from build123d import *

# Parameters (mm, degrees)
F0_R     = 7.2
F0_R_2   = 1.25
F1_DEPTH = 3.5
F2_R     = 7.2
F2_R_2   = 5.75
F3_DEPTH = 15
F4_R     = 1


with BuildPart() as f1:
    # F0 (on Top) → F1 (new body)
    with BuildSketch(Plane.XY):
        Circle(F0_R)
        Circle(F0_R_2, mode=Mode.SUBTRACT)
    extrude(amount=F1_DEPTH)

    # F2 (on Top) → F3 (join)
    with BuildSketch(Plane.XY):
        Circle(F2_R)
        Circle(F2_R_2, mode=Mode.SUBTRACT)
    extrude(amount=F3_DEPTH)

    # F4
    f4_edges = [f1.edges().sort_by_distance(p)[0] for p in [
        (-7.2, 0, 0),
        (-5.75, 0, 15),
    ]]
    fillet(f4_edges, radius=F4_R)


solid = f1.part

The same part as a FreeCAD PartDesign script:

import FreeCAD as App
import Part
import Sketcher

V = App.Vector


def edges_at(feature, points):
    """Names of the edges that pass closest to the given points."""
    edges = feature.Shape.Edges
    near = lambda p: min(range(len(edges)), key=lambda i: edges[i].distToShape(Part.Vertex(*p))[0])
    return sorted({f"Edge{near(p) + 1}" for p in points})

doc = App.newDocument("Part")
body = doc.addObject("PartDesign::Body", "Body")

sketch1 = body.newObject("Sketcher::SketchObject", "Sketch")
sketch1.AttachmentSupport = (doc.getObject("XY_Plane"), [""])
sketch1.MapMode = "FlatFace"
sketch1.addGeometry([
    Part.Circle(V(0, 0, 0), V(0, 0, 1), 7.2),
    Part.Circle(V(0, 0, 0), V(0, 0, 1), 1.2),
], False)
sketch1.addConstraint([
    Sketcher.Constraint("Coincident", 0, 3, -1, 1),
    Sketcher.Constraint("Coincident", 1, 3, -1, 1),
    Sketcher.Constraint("Diameter", 0, 14.4),
    Sketcher.Constraint("Diameter", 1, 2.5),
])
pad1 = body.newObject("PartDesign::Pad", "Pad")
pad1.Profile = sketch1
pad1.Length = 3.5

sketch2 = body.newObject("Sketcher::SketchObject", "Sketch001")
sketch2.AttachmentSupport = (doc.getObject("XY_Plane"), [""])
sketch2.MapMode = "FlatFace"
sketch2.addGeometry([
    Part.Circle(V(0, 0, 0), V(0, 0, 1), 7),
    Part.Circle(V(0, 0, 0), V(0, 0, 1), 6),
], False)
sketch2.addConstraint([
    Sketcher.Constraint("Coincident", 0, 3, -1, 1),
    Sketcher.Constraint("Coincident", 1, 3, -1, 1),
    Sketcher.Constraint("Diameter", 0, 14.4),
    Sketcher.Constraint("Diameter", 1, 11.5),
])
pad2 = body.newObject("PartDesign::Pad", "Pad001")
pad2.Profile = sketch2
pad2.Length = 15
doc.recompute()

fillet = body.newObject("PartDesign::Fillet", "Fillet")
fillet.Base = (pad2, edges_at(pad2, [(-7.2, 0, 0), (-5.75, 0, 15)]))
fillet.Radius = 1

doc.recompute()
